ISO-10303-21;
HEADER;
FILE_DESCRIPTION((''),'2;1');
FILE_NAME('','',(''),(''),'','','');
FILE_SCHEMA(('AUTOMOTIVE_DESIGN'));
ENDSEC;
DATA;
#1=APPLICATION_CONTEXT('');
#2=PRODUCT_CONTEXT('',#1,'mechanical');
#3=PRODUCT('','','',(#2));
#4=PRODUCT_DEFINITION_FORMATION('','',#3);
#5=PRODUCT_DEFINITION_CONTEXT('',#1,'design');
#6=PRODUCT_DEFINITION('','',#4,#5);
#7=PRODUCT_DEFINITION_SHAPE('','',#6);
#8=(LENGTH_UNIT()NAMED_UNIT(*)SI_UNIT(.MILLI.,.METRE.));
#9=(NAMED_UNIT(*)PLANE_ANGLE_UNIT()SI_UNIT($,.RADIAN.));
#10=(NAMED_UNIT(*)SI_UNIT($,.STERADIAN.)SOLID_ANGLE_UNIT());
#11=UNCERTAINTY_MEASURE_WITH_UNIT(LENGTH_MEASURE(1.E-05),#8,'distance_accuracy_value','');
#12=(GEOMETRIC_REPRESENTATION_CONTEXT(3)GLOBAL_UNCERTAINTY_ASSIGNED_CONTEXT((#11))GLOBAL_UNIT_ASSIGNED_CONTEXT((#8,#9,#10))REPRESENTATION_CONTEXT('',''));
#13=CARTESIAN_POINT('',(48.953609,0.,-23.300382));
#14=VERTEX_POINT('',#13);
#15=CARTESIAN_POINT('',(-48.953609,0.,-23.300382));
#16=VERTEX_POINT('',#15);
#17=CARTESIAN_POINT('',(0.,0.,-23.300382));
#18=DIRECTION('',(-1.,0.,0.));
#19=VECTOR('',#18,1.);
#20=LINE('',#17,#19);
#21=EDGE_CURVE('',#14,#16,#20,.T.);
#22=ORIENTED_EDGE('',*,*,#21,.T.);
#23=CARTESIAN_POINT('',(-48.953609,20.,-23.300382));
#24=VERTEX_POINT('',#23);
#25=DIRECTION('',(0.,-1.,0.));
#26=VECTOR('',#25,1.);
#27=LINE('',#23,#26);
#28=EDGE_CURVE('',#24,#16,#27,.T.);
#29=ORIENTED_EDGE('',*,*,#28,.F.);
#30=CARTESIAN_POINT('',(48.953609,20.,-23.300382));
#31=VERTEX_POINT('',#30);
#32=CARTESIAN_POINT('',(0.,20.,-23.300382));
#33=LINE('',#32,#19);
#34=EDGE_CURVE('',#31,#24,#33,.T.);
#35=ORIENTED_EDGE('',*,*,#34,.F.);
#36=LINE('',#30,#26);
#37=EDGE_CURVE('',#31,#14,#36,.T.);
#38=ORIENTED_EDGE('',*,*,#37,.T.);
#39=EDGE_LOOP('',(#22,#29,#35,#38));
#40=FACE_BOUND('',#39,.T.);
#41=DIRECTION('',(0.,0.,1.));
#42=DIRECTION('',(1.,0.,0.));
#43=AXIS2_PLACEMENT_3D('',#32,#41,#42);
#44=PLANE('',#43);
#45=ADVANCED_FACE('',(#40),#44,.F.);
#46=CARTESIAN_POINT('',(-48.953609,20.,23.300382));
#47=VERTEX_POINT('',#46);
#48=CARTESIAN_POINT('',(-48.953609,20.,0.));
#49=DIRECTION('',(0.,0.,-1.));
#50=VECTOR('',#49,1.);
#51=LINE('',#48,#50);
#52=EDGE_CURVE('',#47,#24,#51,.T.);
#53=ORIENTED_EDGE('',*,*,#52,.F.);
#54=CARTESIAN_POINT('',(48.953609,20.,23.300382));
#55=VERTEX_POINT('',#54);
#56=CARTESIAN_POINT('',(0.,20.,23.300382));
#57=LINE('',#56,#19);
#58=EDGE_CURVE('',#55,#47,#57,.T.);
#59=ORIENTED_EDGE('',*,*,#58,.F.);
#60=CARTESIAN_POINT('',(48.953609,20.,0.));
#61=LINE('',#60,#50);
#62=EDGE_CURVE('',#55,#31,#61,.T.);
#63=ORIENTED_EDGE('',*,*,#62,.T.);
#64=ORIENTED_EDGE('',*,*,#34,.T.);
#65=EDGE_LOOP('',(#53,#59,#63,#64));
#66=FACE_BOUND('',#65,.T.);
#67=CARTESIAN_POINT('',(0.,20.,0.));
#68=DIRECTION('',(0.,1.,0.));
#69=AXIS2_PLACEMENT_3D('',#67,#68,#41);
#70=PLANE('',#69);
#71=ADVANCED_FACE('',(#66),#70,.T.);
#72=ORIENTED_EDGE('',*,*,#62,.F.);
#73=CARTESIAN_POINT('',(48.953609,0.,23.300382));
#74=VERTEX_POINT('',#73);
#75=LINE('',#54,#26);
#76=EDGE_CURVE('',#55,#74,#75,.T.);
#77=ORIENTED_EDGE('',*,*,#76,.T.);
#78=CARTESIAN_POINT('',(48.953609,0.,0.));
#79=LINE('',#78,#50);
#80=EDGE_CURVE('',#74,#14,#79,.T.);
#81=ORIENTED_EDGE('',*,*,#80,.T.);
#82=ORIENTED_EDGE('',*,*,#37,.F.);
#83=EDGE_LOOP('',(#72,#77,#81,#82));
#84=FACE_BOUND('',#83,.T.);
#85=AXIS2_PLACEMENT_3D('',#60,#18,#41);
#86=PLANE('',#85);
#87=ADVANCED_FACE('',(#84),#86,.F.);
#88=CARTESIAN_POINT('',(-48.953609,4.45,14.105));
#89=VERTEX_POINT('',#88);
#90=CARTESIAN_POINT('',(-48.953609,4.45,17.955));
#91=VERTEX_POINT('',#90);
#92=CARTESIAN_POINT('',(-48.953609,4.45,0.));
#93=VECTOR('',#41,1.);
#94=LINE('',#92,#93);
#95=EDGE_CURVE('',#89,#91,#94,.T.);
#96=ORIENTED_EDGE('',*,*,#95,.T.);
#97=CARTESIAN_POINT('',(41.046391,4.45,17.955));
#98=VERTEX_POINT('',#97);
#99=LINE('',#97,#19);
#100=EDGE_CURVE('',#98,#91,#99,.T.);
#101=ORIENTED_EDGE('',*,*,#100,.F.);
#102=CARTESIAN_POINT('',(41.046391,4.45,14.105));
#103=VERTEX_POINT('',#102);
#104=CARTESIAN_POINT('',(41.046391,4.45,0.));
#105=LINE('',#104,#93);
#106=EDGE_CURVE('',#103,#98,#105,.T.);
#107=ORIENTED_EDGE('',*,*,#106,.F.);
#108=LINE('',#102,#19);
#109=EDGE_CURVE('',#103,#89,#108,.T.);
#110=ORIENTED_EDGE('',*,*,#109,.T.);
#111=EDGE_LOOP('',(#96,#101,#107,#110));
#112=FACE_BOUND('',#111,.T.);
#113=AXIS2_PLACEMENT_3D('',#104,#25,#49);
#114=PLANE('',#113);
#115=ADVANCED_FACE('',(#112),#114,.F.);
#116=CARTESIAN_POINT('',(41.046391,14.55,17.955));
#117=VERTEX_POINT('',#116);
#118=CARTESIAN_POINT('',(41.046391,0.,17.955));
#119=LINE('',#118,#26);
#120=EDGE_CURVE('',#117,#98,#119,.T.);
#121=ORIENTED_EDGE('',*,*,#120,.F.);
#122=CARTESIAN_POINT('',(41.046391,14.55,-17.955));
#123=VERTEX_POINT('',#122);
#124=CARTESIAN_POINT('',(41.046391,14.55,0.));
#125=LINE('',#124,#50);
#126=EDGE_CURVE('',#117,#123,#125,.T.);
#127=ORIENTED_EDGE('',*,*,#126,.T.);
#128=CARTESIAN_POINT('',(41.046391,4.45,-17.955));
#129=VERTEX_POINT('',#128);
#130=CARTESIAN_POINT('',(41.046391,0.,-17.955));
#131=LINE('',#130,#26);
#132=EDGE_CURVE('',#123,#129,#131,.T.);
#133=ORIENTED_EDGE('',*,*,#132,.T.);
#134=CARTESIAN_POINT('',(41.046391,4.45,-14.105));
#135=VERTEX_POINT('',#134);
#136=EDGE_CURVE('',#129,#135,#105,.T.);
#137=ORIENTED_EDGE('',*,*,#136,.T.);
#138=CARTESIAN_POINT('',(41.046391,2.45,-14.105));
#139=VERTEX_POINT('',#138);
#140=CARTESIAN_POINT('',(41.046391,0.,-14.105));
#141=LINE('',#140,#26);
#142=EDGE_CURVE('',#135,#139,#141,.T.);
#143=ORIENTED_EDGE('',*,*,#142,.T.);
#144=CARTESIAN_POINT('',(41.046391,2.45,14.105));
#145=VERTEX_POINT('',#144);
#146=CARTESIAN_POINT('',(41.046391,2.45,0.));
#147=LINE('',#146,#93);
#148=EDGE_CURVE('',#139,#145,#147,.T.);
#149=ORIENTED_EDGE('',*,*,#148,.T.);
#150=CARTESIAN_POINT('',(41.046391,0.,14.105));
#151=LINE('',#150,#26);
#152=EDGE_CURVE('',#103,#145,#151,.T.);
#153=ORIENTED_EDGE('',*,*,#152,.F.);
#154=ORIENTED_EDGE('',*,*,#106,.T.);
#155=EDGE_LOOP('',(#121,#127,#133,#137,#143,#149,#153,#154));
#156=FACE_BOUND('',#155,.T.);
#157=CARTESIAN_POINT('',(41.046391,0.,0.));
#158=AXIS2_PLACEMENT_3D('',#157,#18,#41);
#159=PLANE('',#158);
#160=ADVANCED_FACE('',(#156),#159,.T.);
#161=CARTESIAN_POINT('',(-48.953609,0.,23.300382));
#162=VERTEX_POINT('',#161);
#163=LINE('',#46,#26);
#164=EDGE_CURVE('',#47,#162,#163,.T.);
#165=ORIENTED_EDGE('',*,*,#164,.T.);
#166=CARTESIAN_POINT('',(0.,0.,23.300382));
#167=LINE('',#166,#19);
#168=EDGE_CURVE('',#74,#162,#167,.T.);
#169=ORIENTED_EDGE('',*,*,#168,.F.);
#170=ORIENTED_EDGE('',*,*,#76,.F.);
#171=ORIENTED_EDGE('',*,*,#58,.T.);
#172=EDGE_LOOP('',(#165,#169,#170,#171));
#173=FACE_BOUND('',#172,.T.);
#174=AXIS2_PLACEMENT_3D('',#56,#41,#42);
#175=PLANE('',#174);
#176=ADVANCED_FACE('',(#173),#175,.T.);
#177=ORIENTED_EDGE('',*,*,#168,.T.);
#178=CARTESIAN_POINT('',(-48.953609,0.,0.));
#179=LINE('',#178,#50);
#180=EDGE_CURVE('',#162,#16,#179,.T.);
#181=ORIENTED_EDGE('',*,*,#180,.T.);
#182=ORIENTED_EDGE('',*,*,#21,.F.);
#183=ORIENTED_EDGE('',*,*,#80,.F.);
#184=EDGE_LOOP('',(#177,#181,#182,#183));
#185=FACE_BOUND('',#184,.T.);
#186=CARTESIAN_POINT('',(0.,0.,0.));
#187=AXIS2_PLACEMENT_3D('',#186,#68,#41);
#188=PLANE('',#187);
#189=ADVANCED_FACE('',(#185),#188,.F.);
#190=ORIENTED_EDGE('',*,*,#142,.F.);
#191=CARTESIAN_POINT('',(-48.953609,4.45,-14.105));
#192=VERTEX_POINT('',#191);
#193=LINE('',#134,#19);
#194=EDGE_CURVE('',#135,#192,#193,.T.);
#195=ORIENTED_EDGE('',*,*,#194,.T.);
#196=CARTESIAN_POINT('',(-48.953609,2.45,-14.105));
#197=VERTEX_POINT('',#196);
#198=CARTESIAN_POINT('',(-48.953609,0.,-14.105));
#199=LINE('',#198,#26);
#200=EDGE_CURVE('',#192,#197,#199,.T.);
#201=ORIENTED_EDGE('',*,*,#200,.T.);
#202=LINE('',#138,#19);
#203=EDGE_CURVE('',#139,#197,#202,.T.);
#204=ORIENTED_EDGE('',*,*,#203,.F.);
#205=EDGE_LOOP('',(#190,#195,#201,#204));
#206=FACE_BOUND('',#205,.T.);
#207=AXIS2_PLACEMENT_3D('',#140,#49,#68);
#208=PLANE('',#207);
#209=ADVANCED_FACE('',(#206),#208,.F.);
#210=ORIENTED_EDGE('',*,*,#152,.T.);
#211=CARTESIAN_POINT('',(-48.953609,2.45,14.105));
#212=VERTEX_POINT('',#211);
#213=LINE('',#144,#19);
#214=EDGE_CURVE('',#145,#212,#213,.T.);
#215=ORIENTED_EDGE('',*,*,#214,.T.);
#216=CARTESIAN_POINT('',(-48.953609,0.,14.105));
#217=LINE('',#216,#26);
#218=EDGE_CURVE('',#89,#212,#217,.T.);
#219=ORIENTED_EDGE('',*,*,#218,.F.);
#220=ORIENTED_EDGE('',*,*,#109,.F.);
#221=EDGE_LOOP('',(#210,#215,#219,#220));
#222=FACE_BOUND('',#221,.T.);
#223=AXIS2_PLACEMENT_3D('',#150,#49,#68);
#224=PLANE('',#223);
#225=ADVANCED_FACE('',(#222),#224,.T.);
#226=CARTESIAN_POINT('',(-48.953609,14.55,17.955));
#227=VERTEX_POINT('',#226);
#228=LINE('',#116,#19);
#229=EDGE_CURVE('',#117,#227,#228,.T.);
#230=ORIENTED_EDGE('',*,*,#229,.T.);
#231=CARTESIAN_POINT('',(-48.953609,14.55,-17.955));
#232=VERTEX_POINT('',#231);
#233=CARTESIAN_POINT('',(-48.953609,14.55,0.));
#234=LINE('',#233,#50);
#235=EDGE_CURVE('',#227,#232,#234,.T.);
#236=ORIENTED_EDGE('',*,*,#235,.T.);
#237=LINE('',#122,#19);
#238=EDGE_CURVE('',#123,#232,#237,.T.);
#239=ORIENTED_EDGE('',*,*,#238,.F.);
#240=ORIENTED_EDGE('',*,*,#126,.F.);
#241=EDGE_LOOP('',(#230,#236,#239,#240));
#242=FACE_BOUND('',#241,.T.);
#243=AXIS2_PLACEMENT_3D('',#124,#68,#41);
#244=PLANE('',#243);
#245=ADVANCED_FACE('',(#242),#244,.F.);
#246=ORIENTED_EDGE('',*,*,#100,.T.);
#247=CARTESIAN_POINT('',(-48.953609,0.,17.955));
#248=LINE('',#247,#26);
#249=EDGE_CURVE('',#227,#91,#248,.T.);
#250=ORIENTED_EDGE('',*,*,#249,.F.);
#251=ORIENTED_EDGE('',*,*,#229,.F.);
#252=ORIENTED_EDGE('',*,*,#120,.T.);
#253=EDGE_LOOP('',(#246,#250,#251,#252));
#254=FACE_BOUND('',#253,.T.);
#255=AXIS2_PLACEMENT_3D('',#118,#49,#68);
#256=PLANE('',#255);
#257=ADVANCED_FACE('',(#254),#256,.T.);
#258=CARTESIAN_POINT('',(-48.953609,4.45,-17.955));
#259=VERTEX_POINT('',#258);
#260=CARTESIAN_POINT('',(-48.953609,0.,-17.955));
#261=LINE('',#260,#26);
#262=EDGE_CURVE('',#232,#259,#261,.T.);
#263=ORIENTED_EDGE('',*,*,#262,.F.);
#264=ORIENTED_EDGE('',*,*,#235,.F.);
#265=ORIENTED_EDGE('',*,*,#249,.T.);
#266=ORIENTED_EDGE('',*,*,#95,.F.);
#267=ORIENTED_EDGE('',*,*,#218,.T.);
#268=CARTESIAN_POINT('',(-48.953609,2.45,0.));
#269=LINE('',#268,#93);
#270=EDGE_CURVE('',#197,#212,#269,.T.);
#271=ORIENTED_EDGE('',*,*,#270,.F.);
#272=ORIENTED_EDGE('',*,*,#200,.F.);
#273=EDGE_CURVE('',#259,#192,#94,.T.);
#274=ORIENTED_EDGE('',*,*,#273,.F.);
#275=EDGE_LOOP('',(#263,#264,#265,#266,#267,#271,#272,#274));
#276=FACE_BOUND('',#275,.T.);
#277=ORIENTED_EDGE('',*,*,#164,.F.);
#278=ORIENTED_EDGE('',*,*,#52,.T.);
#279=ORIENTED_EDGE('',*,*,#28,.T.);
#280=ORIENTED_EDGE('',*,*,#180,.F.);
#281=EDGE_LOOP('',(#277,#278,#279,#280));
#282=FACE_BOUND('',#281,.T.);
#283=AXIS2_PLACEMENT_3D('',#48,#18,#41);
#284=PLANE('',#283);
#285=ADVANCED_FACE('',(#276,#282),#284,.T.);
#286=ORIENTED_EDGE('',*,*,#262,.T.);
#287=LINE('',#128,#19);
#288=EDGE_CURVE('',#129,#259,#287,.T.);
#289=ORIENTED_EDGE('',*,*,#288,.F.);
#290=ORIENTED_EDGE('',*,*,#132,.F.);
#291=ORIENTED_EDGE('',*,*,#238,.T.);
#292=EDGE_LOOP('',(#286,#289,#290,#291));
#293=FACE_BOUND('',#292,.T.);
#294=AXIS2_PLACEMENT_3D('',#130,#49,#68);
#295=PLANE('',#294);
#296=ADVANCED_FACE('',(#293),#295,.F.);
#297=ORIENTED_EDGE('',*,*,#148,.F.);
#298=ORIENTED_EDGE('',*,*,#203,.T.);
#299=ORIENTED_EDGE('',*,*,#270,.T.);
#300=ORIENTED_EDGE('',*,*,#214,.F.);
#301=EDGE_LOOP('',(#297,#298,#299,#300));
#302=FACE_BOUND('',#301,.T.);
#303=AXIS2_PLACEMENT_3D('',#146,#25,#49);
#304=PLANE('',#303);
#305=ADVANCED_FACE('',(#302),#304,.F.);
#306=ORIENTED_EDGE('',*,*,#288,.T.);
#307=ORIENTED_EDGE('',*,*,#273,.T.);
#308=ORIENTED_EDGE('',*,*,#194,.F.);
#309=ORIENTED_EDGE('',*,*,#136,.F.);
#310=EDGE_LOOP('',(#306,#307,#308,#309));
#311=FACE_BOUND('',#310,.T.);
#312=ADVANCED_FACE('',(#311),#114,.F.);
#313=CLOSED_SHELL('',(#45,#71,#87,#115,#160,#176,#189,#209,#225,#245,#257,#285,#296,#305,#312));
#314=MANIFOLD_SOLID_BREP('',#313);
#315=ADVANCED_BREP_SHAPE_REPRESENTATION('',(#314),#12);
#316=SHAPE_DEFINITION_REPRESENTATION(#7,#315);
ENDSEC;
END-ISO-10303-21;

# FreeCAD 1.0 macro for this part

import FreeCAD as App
import Part
import Sketcher

V = App.Vector
Q = App.Units.Quantity

doc = App.newDocument("Part")
body = doc.addObject("PartDesign::Body", "Body")

sketch1 = body.newObject("Sketcher::SketchObject", "Sketch")
sketch1.AttachmentSupport = (doc.getObject("XZ_Plane"), [""])
sketch1.MapMode = "FlatFace"
sketch1.addGeometry(Part.LineSegment(V(-49, -23, 0), V(-49, 23, 0)), False)
sketch1.addGeometry(Part.LineSegment(V(-49, 23, 0), V(49, 23, 0)), False)
sketch1.addGeometry(Part.LineSegment(V(49, 23, 0), V(49, -23, 0)), False)
sketch1.addGeometry(Part.LineSegment(V(49, -23, 0), V(-49, -23, 0)), False)
sketch1.addConstraint(Sketcher.Constraint("Coincident", 0, 2, 1, 1))
sketch1.addConstraint(Sketcher.Constraint("Coincident", 1, 2, 2, 1))
sketch1.addConstraint(Sketcher.Constraint("Coincident", 2, 2, 3, 1))
sketch1.addConstraint(Sketcher.Constraint("Coincident", 3, 2, 0, 1))
sketch1.addConstraint(Sketcher.Constraint("Vertical", 0))
sketch1.addConstraint(Sketcher.Constraint("Horizontal", 1))
sketch1.addConstraint(Sketcher.Constraint("Vertical", 2))
sketch1.addConstraint(Sketcher.Constraint("Horizontal", 3))
sketch1.addConstraint(Sketcher.Constraint("Symmetric", 0, 2, 2, 2, -1, 1))
sketch1.addConstraint(Sketcher.Constraint("DistanceX", 1, 1, 1, 2, Q("97.907218 mm")))
sketch1.addConstraint(Sketcher.Constraint("DistanceY", 0, 1, 0, 2, Q("46.600764 mm")))
pad1 = body.newObject("PartDesign::Pad", "Pad")
pad1.Profile = sketch1
pad1.Length = 20
pad1.Reversed = True

sketch2 = body.newObject("Sketcher::SketchObject", "Sketch001")
sketch2.AttachmentSupport = (doc.getObject("YZ_Plane"), [""])
sketch2.MapMode = "FlatFace"
sketch2.AttachmentOffset = App.Placement(V(0, 0, -48.953609), App.Rotation())
sketch2.addGeometry(Part.LineSegment(V(15, -17, 0), V(5, -17, 0)), False)
sketch2.addGeometry(Part.LineSegment(V(5, -17, 0), V(5, 17, 0)), False)
sketch2.addGeometry(Part.LineSegment(V(5, 17, 0), V(15, 17, 0)), False)
sketch2.addGeometry(Part.LineSegment(V(15, 17, 0), V(15, -17, 0)), False)
sketch2.addConstraint(Sketcher.Constraint("Coincident", 0, 2, 1, 1))
sketch2.addConstraint(Sketcher.Constraint("Coincident", 1, 2, 2, 1))
sketch2.addConstraint(Sketcher.Constraint("Coincident", 2, 2, 3, 1))
sketch2.addConstraint(Sketcher.Constraint("Coincident", 3, 2, 0, 1))
sketch2.addConstraint(Sketcher.Constraint("Horizontal", 0))
sketch2.addConstraint(Sketcher.Constraint("Vertical", 1))
sketch2.addConstraint(Sketcher.Constraint("Horizontal", 2))
sketch2.addConstraint(Sketcher.Constraint("Vertical", 3))
sketch2.addConstraint(Sketcher.Constraint("DistanceX", 0, 2, 0, 1, Q("9.1 mm")))
sketch2.addConstraint(Sketcher.Constraint("DistanceY", 1, 1, 1, 2, Q("34.21 mm")))
sketch2.addConstraint(Sketcher.Constraint("DistanceX", -1, 1, 0, 2, Q("5.45 mm")))
sketch2.addConstraint(Sketcher.Constraint("DistanceY", 0, 2, -1, 1, Q("17.105 mm")))
pocket1 = body.newObject("PartDesign::Pocket", "Pocket")
pocket1.Profile = sketch2
pocket1.Length = 90
pocket1.Reversed = True

sketch3 = body.newObject("Sketcher::SketchObject", "Sketch002")
sketch3.AttachmentSupport = (doc.getObject("YZ_Plane"), [""])
sketch3.MapMode = "FlatFace"
sketch3.AttachmentOffset = App.Placement(V(0, 0, -48.953609), App.Rotation())
sketch3.addGeometry(Part.LineSegment(V(4.5, -14.1, 0), V(2.5, -14.1, 0)), False)
sketch3.addGeometry(Part.LineSegment(V(2.5, -14.1, 0), V(2.5, 14.1, 0)), False)
sketch3.addGeometry(Part.LineSegment(V(2.5, 14.1, 0), V(4.5, 14.1, 0)), False)
sketch3.addGeometry(Part.LineSegment(V(4.5, 14.1, 0), V(4.5, 18, 0)), False)
sketch3.addGeometry(Part.LineSegment(V(4.5, 18, 0), V(14.6, 18, 0)), False)
sketch3.addGeometry(Part.LineSegment(V(14.6, 18, 0), V(14.6, 17.1, 0)), False)
sketch3.addGeometry(Part.LineSegment(V(14.6, 17.1, 0), V(5.5, 17.1, 0)), False)
sketch3.addGeometry(Part.LineSegment(V(5.5, 17.1, 0), V(5.5, -17.1, 0)), False)
sketch3.addGeometry(Part.LineSegment(V(5.5, -17.1, 0), V(14.6, -17.1, 0)), False)
sketch3.addGeometry(Part.LineSegment(V(14.6, -17.1, 0), V(14.6, -18, 0)), False)
sketch3.addGeometry(Part.LineSegment(V(14.6, -18, 0), V(4.5, -18, 0)), False)
sketch3.addGeometry(Part.LineSegment(V(4.5, -18, 0), V(4.5, -14.1, 0)), False)
sketch3.addConstraint(Sketcher.Constraint("Coincident", 0, 2, 1, 1))
sketch3.addConstraint(Sketcher.Constraint("Coincident", 1, 2, 2, 1))
sketch3.addConstraint(Sketcher.Constraint("Coincident", 2, 2, 3, 1))
sketch3.addConstraint(Sketcher.Constraint("Coincident", 3, 2, 4, 1))
sketch3.addConstraint(Sketcher.Constraint("Coincident", 4, 2, 5, 1))
sketch3.addConstraint(Sketcher.Constraint("Coincident", 5, 2, 6, 1))
sketch3.addConstraint(Sketcher.Constraint("Coincident", 6, 2, 7, 1))
sketch3.addConstraint(Sketcher.Constraint("Coincident", 7, 2, 8, 1))
sketch3.addConstraint(Sketcher.Constraint("Coincident", 8, 2, 9, 1))
sketch3.addConstraint(Sketcher.Constraint("Coincident", 9, 2, 10, 1))
sketch3.addConstraint(Sketcher.Constraint("Coincident", 10, 2, 11, 1))
sketch3.addConstraint(Sketcher.Constraint("Coincident", 11, 2, 0, 1))
sketch3.addConstraint(Sketcher.Constraint("Horizontal", 0))
sketch3.addConstraint(Sketcher.Constraint("Vertical", 1))
sketch3.addConstraint(Sketcher.Constraint("Horizontal", 2))
sketch3.addConstraint(Sketcher.Constraint("Vertical", 3))
sketch3.addConstraint(Sketcher.Constraint("Horizontal", 4))
sketch3.addConstraint(Sketcher.Constraint("Vertical", 5))
sketch3.addConstraint(Sketcher.Constraint("Horizontal", 6))
sketch3.addConstraint(Sketcher.Constraint("Vertical", 7))
sketch3.addConstraint(Sketcher.Constraint("Horizontal", 8))
sketch3.addConstraint(Sketcher.Constraint("Vertical", 9))
sketch3.addConstraint(Sketcher.Constraint("Horizontal", 10))
sketch3.addConstraint(Sketcher.Constraint("Vertical", 11))
sketch3.addConstraint(Sketcher.Constraint("Symmetric", 5, 2, 8, 2, -1))
sketch3.addConstraint(Sketcher.Constraint("Symmetric", 3, 2, 10, 2, -1))
sketch3.addConstraint(Sketcher.Constraint("Equal", 3, 11))
sketch3.addConstraint(Sketcher.Constraint("DistanceX", 0, 2, 0, 1, Q("2 mm")))
sketch3.addConstraint(Sketcher.Constraint("DistanceX", 4, 1, 4, 2, Q("10.1 mm")))
sketch3.addConstraint(Sketcher.Constraint("DistanceX", 6, 2, 6, 1, Q("9.1 mm")))
sketch3.addConstraint(Sketcher.Constraint("DistanceY", 2, 2, 5, 2, Q("3 mm")))
sketch3.addConstraint(Sketcher.Constraint("DistanceY", 1, 1, 1, 2, Q("28.21 mm")))
sketch3.addConstraint(Sketcher.Constraint("DistanceY", 3, 1, 3, 2, Q("3.85 mm")))
sketch3.addConstraint(Sketcher.Constraint("DistanceX", -1, 1, 0, 2, Q("2.45 mm")))
pocket2 = body.newObject("PartDesign::Pocket", "Pocket001")
pocket2.Profile = sketch3
pocket2.Length = 90
pocket2.Reversed = True

doc.recompute()
